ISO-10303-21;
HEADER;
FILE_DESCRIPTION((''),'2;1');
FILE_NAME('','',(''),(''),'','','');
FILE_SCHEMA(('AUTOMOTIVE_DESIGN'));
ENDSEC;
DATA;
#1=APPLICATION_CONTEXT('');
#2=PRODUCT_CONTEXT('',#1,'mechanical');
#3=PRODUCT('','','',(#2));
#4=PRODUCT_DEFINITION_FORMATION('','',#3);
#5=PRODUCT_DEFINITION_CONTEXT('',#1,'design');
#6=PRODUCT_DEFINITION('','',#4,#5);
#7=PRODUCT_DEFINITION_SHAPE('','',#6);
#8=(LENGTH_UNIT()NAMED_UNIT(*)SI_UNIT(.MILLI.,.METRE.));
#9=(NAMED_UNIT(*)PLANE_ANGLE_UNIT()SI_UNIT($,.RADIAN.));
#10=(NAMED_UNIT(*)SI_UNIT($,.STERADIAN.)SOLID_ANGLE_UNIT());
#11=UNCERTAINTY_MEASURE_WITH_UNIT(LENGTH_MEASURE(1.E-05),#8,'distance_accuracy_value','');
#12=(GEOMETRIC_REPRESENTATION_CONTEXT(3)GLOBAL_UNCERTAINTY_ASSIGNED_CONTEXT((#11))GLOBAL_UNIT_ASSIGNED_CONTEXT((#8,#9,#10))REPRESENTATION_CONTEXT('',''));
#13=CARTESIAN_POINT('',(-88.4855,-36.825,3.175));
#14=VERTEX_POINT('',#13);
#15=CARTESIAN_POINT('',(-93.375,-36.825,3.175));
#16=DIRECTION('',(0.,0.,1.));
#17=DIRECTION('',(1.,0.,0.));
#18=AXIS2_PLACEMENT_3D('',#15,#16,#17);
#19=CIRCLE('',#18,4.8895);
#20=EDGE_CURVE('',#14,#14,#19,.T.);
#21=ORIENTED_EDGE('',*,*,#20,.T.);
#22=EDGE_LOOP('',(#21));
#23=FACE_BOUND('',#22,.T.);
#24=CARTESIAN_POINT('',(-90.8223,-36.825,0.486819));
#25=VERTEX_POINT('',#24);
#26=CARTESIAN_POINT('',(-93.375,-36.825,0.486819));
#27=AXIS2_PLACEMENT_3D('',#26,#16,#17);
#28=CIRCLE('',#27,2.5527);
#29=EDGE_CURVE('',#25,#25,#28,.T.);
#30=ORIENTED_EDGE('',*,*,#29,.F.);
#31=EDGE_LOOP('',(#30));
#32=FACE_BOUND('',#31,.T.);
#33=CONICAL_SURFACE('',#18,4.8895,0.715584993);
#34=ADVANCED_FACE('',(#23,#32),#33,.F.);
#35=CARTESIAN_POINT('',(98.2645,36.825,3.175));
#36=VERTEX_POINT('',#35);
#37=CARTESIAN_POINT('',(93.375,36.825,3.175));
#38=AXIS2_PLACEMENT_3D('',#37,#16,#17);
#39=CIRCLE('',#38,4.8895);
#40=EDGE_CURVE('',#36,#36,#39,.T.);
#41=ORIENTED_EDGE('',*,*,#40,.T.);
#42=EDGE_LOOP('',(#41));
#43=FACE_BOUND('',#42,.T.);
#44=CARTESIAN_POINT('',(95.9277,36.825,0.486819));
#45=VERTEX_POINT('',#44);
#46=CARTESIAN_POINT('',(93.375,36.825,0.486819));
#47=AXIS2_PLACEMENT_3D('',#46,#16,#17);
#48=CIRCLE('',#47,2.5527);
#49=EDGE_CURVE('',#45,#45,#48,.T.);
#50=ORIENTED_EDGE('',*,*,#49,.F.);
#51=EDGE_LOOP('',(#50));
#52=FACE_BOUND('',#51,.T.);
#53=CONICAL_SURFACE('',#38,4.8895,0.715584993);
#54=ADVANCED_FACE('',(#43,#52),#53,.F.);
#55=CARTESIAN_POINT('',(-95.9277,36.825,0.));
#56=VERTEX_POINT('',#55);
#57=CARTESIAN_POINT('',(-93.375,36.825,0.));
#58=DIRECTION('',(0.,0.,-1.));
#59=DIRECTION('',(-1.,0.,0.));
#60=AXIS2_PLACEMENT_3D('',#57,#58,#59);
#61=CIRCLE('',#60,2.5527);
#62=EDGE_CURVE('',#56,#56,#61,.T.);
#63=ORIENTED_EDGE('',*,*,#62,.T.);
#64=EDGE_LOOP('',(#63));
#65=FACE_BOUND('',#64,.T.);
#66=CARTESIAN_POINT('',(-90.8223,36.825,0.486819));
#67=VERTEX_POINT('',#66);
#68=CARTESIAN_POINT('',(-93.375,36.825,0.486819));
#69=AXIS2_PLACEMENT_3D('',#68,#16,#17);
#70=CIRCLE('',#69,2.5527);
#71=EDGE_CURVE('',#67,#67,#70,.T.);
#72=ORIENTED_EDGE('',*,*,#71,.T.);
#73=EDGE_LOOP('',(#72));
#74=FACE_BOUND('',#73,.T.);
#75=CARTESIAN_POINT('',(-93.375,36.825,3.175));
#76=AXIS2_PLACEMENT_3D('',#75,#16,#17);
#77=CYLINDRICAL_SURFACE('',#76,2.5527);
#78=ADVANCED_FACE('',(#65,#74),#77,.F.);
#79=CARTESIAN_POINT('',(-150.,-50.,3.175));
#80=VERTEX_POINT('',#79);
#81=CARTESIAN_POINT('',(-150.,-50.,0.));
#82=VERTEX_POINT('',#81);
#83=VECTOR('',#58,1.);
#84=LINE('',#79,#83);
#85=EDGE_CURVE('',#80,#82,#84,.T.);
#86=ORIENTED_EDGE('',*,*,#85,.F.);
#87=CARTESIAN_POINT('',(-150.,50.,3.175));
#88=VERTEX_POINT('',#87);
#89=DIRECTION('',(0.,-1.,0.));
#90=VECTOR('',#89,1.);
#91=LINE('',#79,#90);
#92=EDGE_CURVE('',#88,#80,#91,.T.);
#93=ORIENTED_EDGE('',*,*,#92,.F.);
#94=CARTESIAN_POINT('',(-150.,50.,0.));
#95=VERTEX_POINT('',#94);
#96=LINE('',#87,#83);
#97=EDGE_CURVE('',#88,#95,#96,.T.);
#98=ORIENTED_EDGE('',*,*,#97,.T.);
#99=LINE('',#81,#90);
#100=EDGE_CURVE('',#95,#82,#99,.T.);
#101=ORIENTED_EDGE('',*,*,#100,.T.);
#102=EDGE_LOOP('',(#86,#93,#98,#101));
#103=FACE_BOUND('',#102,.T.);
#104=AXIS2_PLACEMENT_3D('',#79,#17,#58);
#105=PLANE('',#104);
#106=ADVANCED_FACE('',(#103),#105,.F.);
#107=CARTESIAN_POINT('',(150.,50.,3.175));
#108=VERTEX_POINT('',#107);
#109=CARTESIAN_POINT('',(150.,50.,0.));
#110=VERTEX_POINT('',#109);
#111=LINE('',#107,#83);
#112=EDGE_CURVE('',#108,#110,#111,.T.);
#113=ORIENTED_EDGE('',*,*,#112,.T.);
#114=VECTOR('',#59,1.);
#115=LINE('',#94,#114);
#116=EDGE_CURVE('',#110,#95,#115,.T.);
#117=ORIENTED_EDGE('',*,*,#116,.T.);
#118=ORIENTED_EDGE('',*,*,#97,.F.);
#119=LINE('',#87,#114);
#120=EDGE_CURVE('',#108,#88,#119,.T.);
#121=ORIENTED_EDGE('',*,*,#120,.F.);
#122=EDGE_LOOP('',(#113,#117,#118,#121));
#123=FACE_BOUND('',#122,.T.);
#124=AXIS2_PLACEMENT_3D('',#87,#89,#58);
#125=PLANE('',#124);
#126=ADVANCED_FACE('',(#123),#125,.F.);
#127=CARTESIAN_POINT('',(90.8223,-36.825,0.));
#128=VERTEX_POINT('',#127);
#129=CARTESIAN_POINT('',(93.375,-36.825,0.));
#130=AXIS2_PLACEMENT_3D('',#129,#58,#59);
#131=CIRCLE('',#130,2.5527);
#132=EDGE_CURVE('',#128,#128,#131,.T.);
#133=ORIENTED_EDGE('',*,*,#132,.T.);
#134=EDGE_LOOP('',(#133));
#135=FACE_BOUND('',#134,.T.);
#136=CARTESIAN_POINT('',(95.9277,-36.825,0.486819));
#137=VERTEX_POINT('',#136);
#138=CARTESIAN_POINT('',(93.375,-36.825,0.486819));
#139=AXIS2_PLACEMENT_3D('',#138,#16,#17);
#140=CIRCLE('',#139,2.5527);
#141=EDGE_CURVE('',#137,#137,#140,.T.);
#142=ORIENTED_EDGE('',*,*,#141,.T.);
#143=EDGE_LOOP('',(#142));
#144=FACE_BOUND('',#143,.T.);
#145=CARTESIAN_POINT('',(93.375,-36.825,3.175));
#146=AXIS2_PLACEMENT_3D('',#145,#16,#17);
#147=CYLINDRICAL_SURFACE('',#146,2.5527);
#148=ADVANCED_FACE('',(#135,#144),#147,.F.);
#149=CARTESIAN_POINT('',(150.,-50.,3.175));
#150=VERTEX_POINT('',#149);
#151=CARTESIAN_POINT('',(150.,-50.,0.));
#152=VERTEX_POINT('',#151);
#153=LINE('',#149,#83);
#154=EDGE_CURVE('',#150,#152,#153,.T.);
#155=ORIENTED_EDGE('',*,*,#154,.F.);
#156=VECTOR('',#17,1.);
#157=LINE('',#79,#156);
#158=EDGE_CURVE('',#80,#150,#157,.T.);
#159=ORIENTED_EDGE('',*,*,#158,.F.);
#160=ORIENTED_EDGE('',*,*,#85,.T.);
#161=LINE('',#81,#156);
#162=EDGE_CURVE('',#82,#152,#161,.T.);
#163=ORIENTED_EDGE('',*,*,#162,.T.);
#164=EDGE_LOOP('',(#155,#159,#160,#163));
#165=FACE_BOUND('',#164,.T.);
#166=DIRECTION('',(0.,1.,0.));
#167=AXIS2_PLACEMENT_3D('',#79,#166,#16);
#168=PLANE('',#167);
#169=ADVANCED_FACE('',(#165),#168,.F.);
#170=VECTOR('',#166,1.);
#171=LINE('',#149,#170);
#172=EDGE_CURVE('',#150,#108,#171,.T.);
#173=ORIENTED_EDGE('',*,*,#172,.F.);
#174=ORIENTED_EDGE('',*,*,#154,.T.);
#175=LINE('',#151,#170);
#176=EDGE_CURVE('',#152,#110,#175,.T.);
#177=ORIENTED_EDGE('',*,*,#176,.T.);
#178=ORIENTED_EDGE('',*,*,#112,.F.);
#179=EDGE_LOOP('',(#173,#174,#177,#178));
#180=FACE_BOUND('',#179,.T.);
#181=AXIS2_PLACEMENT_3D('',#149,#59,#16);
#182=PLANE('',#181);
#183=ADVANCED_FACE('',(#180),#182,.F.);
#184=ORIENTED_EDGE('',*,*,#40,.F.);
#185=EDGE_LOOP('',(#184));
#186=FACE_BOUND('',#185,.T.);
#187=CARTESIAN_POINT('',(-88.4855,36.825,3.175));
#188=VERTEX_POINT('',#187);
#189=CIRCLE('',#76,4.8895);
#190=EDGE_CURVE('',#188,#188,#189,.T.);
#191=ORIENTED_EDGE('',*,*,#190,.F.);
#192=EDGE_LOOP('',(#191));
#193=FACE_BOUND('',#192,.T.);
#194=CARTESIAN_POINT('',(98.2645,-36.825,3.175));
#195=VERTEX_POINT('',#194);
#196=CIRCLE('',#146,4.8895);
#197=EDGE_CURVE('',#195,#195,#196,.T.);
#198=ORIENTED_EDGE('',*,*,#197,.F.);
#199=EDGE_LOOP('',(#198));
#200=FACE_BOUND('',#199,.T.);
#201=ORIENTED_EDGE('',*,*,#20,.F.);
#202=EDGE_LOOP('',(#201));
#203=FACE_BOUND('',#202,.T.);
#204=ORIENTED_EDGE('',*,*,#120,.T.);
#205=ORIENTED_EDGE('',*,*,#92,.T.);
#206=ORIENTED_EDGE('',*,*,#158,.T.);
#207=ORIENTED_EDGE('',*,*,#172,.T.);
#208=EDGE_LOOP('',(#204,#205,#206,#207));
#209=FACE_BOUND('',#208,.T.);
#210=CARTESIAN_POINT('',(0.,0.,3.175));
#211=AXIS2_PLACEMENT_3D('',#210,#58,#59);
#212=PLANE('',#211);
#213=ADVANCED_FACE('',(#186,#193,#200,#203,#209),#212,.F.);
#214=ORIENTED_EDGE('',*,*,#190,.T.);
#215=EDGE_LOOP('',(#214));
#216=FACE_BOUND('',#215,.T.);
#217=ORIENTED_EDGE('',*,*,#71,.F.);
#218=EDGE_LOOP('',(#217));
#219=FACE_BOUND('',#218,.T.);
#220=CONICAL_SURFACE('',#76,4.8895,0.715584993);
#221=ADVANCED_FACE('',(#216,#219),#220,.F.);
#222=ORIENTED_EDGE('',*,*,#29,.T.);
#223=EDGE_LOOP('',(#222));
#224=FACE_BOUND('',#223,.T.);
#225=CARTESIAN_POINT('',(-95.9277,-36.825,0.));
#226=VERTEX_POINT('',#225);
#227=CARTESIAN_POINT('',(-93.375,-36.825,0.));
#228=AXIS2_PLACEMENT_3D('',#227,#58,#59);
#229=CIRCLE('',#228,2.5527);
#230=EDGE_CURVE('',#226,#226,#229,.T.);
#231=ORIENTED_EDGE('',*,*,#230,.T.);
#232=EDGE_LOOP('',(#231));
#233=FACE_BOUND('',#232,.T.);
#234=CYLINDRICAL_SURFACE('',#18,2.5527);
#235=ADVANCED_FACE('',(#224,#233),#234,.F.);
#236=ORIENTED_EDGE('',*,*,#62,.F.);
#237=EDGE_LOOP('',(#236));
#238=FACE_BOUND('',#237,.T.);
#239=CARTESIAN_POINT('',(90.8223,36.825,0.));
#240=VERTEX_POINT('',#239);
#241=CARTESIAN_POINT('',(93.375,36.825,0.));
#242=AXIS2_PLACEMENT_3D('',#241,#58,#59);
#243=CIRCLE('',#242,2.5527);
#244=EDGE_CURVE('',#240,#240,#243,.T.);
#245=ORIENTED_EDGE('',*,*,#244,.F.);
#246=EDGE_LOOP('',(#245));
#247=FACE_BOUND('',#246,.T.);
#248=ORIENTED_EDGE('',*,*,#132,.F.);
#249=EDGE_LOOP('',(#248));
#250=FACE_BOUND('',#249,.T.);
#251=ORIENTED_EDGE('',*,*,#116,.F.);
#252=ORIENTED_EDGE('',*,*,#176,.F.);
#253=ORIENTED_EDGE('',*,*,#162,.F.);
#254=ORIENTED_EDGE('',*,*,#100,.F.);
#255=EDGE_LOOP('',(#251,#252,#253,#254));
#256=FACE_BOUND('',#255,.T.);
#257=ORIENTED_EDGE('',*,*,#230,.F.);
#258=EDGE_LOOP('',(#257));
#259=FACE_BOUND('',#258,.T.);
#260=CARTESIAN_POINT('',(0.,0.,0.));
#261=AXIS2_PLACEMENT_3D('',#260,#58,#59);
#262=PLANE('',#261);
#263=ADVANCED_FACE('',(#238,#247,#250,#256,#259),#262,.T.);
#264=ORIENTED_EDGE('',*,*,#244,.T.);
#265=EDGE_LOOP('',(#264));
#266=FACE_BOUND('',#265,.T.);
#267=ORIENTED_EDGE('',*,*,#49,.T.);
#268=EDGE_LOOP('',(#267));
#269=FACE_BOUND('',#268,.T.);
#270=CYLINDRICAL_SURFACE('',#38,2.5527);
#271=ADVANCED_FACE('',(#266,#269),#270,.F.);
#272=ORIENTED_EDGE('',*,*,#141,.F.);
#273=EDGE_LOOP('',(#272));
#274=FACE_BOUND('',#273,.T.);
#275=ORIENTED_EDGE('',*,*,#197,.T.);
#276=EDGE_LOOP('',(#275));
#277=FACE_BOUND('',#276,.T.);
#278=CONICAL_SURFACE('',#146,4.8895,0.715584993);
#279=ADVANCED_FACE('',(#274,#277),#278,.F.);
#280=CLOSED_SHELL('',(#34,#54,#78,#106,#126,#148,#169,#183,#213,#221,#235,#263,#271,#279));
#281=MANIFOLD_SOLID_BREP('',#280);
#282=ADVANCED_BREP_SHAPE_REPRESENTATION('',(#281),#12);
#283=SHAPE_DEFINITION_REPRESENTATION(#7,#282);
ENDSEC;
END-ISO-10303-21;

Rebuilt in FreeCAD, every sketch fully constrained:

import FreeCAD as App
import Part
import Sketcher
from FreeCAD import Vector
Q = App.Units.Quantity


def add_polygon(sketch, points):
    """Adds a closed chain of lines whose ends are joined by coincident constraints."""
    first, n = sketch.GeometryCount, len(points)
    for a, b in zip(points, points[1:] + points[:1]):
        sketch.addGeometry(Part.LineSegment(App.Vector(*a, 0), App.Vector(*b, 0)), False)
    for i in range(n):
        sketch.addConstraint(Sketcher.Constraint("Coincident", first + i, 2, first + (i + 1) % n, 1))

doc = App.newDocument("Part")
body = doc.addObject("PartDesign::Body", "Body")

sketch1 = body.newObject("Sketcher::SketchObject", "Sketch")
sketch1.AttachmentSupport = (doc.getObject("XY_Plane"), [""])
sketch1.MapMode = "FlatFace"
add_polygon(sketch1, [(-150, 50), (-150, -50), (150, -50), (150, 50)])
sketch1.addConstraint([
    Sketcher.Constraint("Vertical", 0),
    Sketcher.Constraint("Horizontal", 1),
    Sketcher.Constraint("Vertical", 2),
    Sketcher.Constraint("Horizontal", 3),
    Sketcher.Constraint("Symmetric", 0, 2, 2, 2, -1, 1),
    Sketcher.Constraint("DistanceX", 1, 1, 1, 2, 300.0),
    Sketcher.Constraint("DistanceY", 0, 2, 0, 1, 100.0),
])
pad1 = body.newObject("PartDesign::Pad", "Pad")
pad1.Profile = sketch1
pad1.Length = Q("0.125 in")

sketch2 = body.newObject("Sketcher::SketchObject", "Sketch001")
sketch2.AttachmentSupport = (doc.getObject("XY_Plane"), [""])
sketch2.MapMode = "FlatFace"
sketch2.AttachmentOffset = App.Placement(Vector(0, 0, 0.125 * 25.4), App.Rotation())
sketch2.addGeometry([
    Part.Circle(Vector(93.4, 36.8, 0), Vector(0, 0, 1), 2.6),
    Part.Circle(Vector(-93.4, 36.8, 0), Vector(0, 0, 1), 2.6),
    Part.Circle(Vector(-93.4, -36.8, 0), Vector(0, 0, 1), 2.6),
    Part.Circle(Vector(93.4, -36.8, 0), Vector(0, 0, 1), 2.6),
], False)
sketch2.addConstraint([
    Sketcher.Constraint("Equal", 0, 1),
    Sketcher.Constraint("Equal", 1, 2),
    Sketcher.Constraint("Equal", 2, 3),
    Sketcher.Constraint("Symmetric", 0, 3, 2, 3, -1, 1),
    Sketcher.Constraint("Symmetric", 1, 3, 3, 3, -1, 1),
    Sketcher.Constraint("Symmetric", 0, 3, 1, 3, -2),
    Sketcher.Constraint("Diameter", 0, Q("0.201 in")),
    Sketcher.Constraint("DistanceX", -1, 1, 0, 3, 93.375),
    Sketcher.Constraint("DistanceY", -1, 1, 0, 3, 36.825),
])
doc.recompute()
hole = body.newObject("PartDesign::Hole", "Hole")
hole.Profile = sketch2
hole.ThreadType = "None"
hole.Diameter = Q("0.201 in")
hole.DepthType = "Dimension"
hole.Depth = Q("0.19 in")
hole.DrillPoint = "Angled"
hole.DrillPointAngle = 118
hole.HoleCutType = "Countersink"
hole.HoleCutDiameter = Q("0.385 in")
hole.HoleCutCountersinkAngle = 82

doc.recompute()
